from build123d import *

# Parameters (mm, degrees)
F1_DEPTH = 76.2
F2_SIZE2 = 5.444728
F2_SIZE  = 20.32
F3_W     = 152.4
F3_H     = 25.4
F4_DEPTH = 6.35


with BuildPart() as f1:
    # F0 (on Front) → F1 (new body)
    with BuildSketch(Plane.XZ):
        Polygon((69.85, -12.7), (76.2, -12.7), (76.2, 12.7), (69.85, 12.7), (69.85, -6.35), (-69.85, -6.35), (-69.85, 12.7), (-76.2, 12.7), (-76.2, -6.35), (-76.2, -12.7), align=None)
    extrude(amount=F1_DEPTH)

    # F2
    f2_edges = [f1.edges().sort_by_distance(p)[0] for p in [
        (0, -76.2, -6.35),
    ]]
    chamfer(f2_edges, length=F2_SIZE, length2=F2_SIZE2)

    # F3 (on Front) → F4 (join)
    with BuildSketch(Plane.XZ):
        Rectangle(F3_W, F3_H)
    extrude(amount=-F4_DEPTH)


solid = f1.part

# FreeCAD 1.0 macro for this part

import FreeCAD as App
import Part
import Sketcher
from FreeCAD import Vector
Q = App.Units.Quantity


def edges_at(feature, points):
    """Names of the edges that pass closest to the given points."""
    edges = feature.Shape.Edges
    near = lambda p: min(range(len(edges)), key=lambda i: edges[i].distToShape(Part.Vertex(*p))[0])
    return sorted({f"Edge{near(p) + 1}" for p in points})


def add_polygon(sketch, points):
    """Adds a closed chain of lines whose ends are joined by coincident constraints."""
    first, n = sketch.GeometryCount, len(points)
    for a, b in zip(points, points[1:] + points[:1]):
        sketch.addGeometry(Part.LineSegment(App.Vector(*a, 0), App.Vector(*b, 0)), False)
    for i in range(n):
        sketch.addConstraint(Sketcher.Constraint("Coincident", first + i, 2, first + (i + 1) % n, 1))

doc = App.newDocument("Part")
body = doc.addObject("PartDesign::Body", "Body")

sketch1 = body.newObject("Sketcher::SketchObject", "Sketch")
sketch1.AttachmentSupport = (doc.getObject("XZ_Plane"), [""])
sketch1.MapMode = "FlatFace"
add_polygon(sketch1, [(76, -13), (76, 13), (70, 13), (70, -6), (-70, -6), (-70, 13), (-76, 13), (-76, -13)])
sketch1.addConstraint([
    Sketcher.Constraint("Vertical", 0),
    Sketcher.Constraint("Horizontal", 1),
    Sketcher.Constraint("Vertical", 2),
    Sketcher.Constraint("Horizontal", 3),
    Sketcher.Constraint("Vertical", 4),
    Sketcher.Constraint("Horizontal", 5),
    Sketcher.Constraint("Vertical", 6),
    Sketcher.Constraint("Horizontal", 7),
    Sketcher.Constraint("Symmetric", 0, 2, 6, 2, -1, 1),
    Sketcher.Constraint("Symmetric", 1, 2, 4, 2, -2),
    Sketcher.Constraint("DistanceX", 7, 1, 7, 2, Q("6 in")),
    Sketcher.Constraint("DistanceY", 0, 1, 0, 2, Q("1 in")),
    Sketcher.Constraint("DistanceX", 3, 2, 3, 1, Q("5.5 in")),
    Sketcher.Constraint("DistanceY", 2, 2, 2, 1, Q("0.75 in")),
])
pad1 = body.newObject("PartDesign::Pad", "Pad")
pad1.Profile = sketch1
pad1.Length = Q("3 in")
doc.recompute()

chamfer = body.newObject("PartDesign::Chamfer", "Chamfer")
chamfer.Base = (pad1, edges_at(pad1, [(0, -76.2, -6.35)]))
chamfer.ChamferType = "Two distances"
chamfer.Size = Q("0.8 in")
chamfer.Size2 = 5.444728

sketch2 = body.newObject("Sketcher::SketchObject", "Sketch001")
sketch2.AttachmentSupport = (doc.getObject("XZ_Plane"), [""])
sketch2.MapMode = "FlatFace"
add_polygon(sketch2, [(-76, 13), (-76, -13), (76, -13), (76, 13)])
sketch2.addConstraint([
    Sketcher.Constraint("Vertical", 0),
    Sketcher.Constraint("Horizontal", 1),
    Sketcher.Constraint("Vertical", 2),
    Sketcher.Constraint("Horizontal", 3),
    Sketcher.Constraint("Symmetric", 0, 2, 2, 2, -1, 1),
    Sketcher.Constraint("DistanceX", 1, 1, 1, 2, Q("6 in")),
    Sketcher.Constraint("DistanceY", 0, 2, 0, 1, Q("1 in")),
])
pad2 = body.newObject("PartDesign::Pad", "Pad001")
pad2.Profile = sketch2
pad2.Length = Q("0.25 in")
pad2.Reversed = True

doc.recompute()
